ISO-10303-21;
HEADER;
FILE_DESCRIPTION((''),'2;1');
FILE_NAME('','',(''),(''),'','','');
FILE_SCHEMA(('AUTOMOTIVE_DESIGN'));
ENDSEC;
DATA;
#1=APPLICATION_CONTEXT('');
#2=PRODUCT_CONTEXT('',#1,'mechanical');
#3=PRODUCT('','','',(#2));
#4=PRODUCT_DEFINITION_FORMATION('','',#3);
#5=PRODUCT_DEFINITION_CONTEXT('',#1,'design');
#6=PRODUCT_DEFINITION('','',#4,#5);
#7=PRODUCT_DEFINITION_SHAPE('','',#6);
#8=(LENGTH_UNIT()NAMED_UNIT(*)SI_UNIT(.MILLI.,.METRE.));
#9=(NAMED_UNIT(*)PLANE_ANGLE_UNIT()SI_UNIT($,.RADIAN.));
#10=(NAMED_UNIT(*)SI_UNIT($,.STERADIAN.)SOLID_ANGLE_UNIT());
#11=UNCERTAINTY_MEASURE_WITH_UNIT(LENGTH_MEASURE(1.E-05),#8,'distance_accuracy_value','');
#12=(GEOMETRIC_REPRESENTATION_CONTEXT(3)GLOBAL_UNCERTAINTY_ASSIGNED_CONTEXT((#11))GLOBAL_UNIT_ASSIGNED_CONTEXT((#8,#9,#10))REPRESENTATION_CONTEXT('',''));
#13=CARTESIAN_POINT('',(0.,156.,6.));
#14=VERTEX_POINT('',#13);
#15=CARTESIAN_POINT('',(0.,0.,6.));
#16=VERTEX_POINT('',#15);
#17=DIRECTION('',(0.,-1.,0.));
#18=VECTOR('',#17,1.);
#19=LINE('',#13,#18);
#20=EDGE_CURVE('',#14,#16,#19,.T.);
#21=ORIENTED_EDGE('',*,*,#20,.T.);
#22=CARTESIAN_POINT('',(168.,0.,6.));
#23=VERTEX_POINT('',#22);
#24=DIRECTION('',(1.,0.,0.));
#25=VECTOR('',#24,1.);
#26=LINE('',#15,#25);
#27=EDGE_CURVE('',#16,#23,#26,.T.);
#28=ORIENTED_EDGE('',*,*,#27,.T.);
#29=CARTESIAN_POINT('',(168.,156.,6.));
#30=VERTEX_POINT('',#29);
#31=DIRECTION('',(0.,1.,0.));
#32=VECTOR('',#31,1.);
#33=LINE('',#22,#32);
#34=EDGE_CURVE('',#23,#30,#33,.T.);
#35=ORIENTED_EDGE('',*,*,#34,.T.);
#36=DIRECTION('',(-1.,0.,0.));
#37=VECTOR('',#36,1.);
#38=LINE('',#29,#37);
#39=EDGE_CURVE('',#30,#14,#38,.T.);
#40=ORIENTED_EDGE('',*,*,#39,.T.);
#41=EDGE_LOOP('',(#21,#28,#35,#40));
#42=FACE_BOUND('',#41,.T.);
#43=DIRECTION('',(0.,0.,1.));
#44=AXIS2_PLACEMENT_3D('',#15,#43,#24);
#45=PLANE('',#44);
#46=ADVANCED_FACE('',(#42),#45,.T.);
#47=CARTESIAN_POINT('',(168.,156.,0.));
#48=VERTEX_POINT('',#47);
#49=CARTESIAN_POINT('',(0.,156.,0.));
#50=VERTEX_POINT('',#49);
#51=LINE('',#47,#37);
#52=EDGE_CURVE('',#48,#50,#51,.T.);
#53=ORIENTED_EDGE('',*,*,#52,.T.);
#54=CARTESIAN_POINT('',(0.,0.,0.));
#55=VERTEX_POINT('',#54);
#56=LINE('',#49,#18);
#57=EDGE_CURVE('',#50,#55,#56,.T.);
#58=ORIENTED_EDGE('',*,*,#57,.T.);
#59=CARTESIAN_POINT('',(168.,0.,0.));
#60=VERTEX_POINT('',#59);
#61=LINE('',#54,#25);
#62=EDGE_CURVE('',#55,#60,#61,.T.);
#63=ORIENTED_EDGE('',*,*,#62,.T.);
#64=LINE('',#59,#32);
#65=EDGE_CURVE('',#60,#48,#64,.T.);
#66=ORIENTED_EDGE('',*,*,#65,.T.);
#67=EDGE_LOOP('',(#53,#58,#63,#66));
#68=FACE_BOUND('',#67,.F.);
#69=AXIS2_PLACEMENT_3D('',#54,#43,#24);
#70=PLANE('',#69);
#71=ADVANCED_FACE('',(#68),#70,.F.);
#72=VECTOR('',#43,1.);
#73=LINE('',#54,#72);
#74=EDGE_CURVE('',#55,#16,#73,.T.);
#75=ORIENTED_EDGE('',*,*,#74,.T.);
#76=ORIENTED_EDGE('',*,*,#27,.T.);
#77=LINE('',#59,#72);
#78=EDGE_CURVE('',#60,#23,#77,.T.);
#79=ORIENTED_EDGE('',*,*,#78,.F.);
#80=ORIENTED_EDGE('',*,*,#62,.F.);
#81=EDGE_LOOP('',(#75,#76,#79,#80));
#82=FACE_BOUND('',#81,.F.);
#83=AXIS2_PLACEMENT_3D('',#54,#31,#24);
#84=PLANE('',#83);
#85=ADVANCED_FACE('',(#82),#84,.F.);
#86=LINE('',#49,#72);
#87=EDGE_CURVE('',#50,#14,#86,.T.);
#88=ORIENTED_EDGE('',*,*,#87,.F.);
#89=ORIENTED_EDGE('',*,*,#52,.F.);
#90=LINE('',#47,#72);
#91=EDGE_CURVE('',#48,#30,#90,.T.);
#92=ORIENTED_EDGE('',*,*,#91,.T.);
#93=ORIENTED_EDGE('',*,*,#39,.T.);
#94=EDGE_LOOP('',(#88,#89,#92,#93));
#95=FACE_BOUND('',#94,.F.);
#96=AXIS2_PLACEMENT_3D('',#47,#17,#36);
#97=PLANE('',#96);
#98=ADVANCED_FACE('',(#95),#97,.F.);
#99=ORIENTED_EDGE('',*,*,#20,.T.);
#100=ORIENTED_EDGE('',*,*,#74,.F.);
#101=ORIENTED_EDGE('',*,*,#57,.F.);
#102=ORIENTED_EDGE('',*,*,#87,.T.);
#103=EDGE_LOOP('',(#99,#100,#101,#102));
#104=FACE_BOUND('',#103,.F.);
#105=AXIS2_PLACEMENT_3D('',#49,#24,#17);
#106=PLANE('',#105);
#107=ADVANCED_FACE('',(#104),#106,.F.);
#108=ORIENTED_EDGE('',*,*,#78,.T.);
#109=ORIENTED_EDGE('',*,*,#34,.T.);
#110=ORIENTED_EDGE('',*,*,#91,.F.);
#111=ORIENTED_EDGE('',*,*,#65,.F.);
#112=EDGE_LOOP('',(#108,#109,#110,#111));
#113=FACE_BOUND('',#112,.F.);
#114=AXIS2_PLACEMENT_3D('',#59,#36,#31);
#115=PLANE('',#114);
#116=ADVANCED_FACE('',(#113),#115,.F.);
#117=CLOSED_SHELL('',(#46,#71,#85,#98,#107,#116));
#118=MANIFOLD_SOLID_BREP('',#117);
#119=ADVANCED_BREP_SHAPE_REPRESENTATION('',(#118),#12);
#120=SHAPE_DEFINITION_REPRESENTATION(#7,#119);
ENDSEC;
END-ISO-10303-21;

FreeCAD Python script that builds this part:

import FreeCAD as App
import Part
import Sketcher


def add_polygon(sketch, points):
    """Adds a closed chain of lines whose ends are joined by coincident constraints."""
    first, n = sketch.GeometryCount, len(points)
    for a, b in zip(points, points[1:] + points[:1]):
        sketch.addGeometry(Part.LineSegment(App.Vector(*a, 0), App.Vector(*b, 0)), False)
    for i in range(n):
        sketch.addConstraint(Sketcher.Constraint("Coincident", first + i, 2, first + (i + 1) % n, 1))

doc = App.newDocument("Part")
body = doc.addObject("PartDesign::Body", "Body")

# Sketch on XY plane
sketch1 = body.newObject("Sketcher::SketchObject", "Sketch")
sketch1.AttachmentSupport = (doc.getObject("XY_Plane"), [""])
sketch1.MapMode = "FlatFace"
add_polygon(sketch1, [(0, 156), (0, 0), (168, 0), (168, 156)])  # lines 0-3
sketch1.addConstraint([
    Sketcher.Constraint("Vertical", 0),
    Sketcher.Constraint("Horizontal", 1),
    Sketcher.Constraint("Vertical", 2),
    Sketcher.Constraint("Horizontal", 3),
    Sketcher.Constraint("Coincident", 0, 2, -1, 1),
    Sketcher.Constraint("DistanceX", 1, 1, 1, 2, 168.0),
    Sketcher.Constraint("DistanceY", 0, 2, 0, 1, 156.0),
])
pad1 = body.newObject("PartDesign::Pad", "Pad")
pad1.Profile = sketch1
pad1.Length = 6

doc.recompute()
